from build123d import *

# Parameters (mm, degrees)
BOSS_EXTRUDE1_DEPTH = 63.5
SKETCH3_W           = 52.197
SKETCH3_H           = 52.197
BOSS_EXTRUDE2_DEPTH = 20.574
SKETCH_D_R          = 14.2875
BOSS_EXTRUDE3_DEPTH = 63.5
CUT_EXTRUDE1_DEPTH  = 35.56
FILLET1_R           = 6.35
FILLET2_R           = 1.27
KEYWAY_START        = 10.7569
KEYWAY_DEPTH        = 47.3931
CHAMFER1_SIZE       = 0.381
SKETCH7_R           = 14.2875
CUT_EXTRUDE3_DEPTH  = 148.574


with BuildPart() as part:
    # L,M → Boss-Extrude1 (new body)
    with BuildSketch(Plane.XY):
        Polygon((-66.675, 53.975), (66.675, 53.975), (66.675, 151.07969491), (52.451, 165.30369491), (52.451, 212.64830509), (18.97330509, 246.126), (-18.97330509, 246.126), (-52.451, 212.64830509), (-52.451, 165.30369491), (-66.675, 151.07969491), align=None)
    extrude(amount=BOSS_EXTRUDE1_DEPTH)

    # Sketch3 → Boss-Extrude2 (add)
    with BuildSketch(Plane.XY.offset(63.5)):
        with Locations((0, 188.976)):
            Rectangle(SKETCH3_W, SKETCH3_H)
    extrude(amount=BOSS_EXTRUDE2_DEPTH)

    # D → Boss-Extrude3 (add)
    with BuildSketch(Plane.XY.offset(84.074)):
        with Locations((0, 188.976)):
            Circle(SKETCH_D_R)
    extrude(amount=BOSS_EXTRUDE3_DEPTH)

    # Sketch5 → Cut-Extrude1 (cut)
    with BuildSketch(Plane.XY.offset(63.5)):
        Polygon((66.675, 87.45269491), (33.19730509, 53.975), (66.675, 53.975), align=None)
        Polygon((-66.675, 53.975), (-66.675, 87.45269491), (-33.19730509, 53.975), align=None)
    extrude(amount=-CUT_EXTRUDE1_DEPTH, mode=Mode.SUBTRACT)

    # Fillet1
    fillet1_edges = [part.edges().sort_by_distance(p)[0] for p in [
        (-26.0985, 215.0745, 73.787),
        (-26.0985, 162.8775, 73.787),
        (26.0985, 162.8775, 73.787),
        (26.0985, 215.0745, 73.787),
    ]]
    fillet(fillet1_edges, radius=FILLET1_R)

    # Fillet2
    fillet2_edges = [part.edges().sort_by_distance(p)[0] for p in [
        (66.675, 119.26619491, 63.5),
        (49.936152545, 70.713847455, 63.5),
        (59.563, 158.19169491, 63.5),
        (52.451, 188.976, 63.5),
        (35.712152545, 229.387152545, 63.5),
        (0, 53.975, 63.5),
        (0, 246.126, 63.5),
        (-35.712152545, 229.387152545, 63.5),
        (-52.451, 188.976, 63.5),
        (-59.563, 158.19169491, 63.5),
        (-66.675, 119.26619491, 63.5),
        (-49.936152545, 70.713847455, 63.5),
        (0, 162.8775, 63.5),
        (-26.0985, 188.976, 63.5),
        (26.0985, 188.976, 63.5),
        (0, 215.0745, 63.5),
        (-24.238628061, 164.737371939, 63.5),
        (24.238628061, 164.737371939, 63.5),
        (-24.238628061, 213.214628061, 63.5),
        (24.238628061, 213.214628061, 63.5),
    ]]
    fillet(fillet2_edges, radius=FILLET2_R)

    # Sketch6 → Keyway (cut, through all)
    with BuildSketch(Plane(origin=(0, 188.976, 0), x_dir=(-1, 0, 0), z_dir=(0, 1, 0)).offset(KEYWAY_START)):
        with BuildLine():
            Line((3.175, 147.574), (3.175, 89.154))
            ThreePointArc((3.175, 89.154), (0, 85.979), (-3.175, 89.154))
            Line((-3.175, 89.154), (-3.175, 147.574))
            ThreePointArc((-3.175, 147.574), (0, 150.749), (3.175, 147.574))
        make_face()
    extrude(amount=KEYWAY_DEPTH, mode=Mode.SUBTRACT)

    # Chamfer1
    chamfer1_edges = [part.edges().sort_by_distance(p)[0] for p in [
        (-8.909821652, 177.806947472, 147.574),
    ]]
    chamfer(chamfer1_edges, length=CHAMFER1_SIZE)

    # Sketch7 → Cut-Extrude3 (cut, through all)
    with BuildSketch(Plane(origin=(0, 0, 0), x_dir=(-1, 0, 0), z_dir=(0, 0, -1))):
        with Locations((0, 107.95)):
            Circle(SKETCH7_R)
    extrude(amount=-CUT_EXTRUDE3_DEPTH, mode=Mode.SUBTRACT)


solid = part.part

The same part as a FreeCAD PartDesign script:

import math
import FreeCAD as App
import Part
import Sketcher

V = App.Vector
Q = App.Units.Quantity


def edges_at(feature, points):
    """Names of the edges that pass closest to the given points."""
    edges = feature.Shape.Edges
    near = lambda p: min(range(len(edges)), key=lambda i: edges[i].distToShape(Part.Vertex(*p))[0])
    return sorted({f"Edge{near(p) + 1}" for p in points})

doc = App.newDocument("Part")
body = doc.addObject("PartDesign::Body", "Body")

sketch1 = body.newObject("Sketcher::SketchObject", "Sketch")
sketch1.AttachmentSupport = (doc.getObject("XY_Plane"), [""])
sketch1.MapMode = "FlatFace"
sketch1.addGeometry(Part.LineSegment(V(-66.675, 53.975, 0), V(66.675, 53.975, 0)), False)
sketch1.addGeometry(Part.LineSegment(V(66.675, 53.975, 0), V(66.675, 151.079695, 0)), False)
sketch1.addGeometry(Part.LineSegment(V(66.675, 151.079695, 0), V(52.451, 165.303695, 0)), False)
sketch1.addGeometry(Part.LineSegment(V(52.451, 165.303695, 0), V(52.451, 212.648305, 0)), False)
sketch1.addGeometry(Part.LineSegment(V(52.451, 212.648305, 0), V(18.973305, 246.126, 0)), False)
sketch1.addGeometry(Part.LineSegment(V(18.973305, 246.126, 0), V(-18.973305, 246.126, 0)), False)
sketch1.addGeometry(Part.LineSegment(V(-18.973305, 246.126, 0), V(-52.451, 212.648305, 0)), False)
sketch1.addGeometry(Part.LineSegment(V(-52.451, 212.648305, 0), V(-52.451, 165.303695, 0)), False)
sketch1.addGeometry(Part.LineSegment(V(-52.451, 165.303695, 0), V(-66.675, 151.079695, 0)), False)
sketch1.addGeometry(Part.LineSegment(V(-66.675, 151.079695, 0), V(-66.675, 53.975, 0)), False)
sketch1.addConstraint(Sketcher.Constraint("Coincident", 0, 2, 1, 1))
sketch1.addConstraint(Sketcher.Constraint("Coincident", 1, 2, 2, 1))
sketch1.addConstraint(Sketcher.Constraint("Coincident", 2, 2, 3, 1))
sketch1.addConstraint(Sketcher.Constraint("Coincident", 3, 2, 4, 1))
sketch1.addConstraint(Sketcher.Constraint("Coincident", 4, 2, 5, 1))
sketch1.addConstraint(Sketcher.Constraint("Coincident", 5, 2, 6, 1))
sketch1.addConstraint(Sketcher.Constraint("Coincident", 6, 2, 7, 1))
sketch1.addConstraint(Sketcher.Constraint("Coincident", 7, 2, 8, 1))
sketch1.addConstraint(Sketcher.Constraint("Coincident", 8, 2, 9, 1))
sketch1.addConstraint(Sketcher.Constraint("Coincident", 9, 2, 0, 1))
sketch1.addConstraint(Sketcher.Constraint("Horizontal", 0))
sketch1.addConstraint(Sketcher.Constraint("Vertical", 1))
sketch1.addConstraint(Sketcher.Constraint("Vertical", 3))
sketch1.addConstraint(Sketcher.Constraint("Horizontal", 5))
sketch1.addConstraint(Sketcher.Constraint("Vertical", 7))
sketch1.addConstraint(Sketcher.Constraint("Vertical", 9))
sketch1.addConstraint(Sketcher.Constraint("Symmetric", 3, 2, 6, 2, -2))
sketch1.addConstraint(Sketcher.Constraint("Symmetric", 1, 2, 8, 2, -2))
sketch1.addConstraint(Sketcher.Constraint("Parallel", 2, 4))
sketch1.addConstraint(Sketcher.Constraint("Perpendicular", 4, 6))
sketch1.addConstraint(Sketcher.Constraint("Parallel", 6, 8))
sketch1.addConstraint(Sketcher.Constraint("Horizontal", 2, 2, 7, 2))
sketch1.addConstraint(Sketcher.Constraint("DistanceX", 0, 1, 0, 2, Q("5.25 in")))
sketch1.addConstraint(Sketcher.Constraint("DistanceY", -1, 1, 4, 2, Q("9.69 in")))
sketch1.addConstraint(Sketcher.Constraint("DistanceX", 2, 2, 1, 2, Q("0.56 in")))
sketch1.addConstraint(Sketcher.Constraint("DistanceY", -1, 1, 0, 2, Q("2.125 in")))
sketch1.addConstraint(Sketcher.Constraint("DistanceX", 5, 2, 5, 1, 37.94661))
sketch1.addConstraint(Sketcher.Constraint("DistanceY", 3, 1, 3, 2, 47.34461))
pad1 = body.newObject("PartDesign::Pad", "Pad")
pad1.Profile = sketch1
pad1.Length = Q("2.5 in")

sketch2 = body.newObject("Sketcher::SketchObject", "Sketch001")
sketch2.AttachmentSupport = (doc.getObject("XY_Plane"), [""])
sketch2.MapMode = "FlatFace"
sketch2.AttachmentOffset = App.Placement(V(0, 0, 2.5 * 25.4), App.Rotation())
sketch2.addGeometry(Part.LineSegment(V(-26.0985, 215.0745, 0), V(-26.0985, 162.8775, 0)), False)
sketch2.addGeometry(Part.LineSegment(V(-26.0985, 162.8775, 0), V(26.0985, 162.8775, 0)), False)
sketch2.addGeometry(Part.LineSegment(V(26.0985, 162.8775, 0), V(26.0985, 215.0745, 0)), False)
sketch2.addGeometry(Part.LineSegment(V(26.0985, 215.0745, 0), V(-26.0985, 215.0745, 0)), False)
sketch2.addConstraint(Sketcher.Constraint("Coincident", 0, 2, 1, 1))
sketch2.addConstraint(Sketcher.Constraint("Coincident", 1, 2, 2, 1))
sketch2.addConstraint(Sketcher.Constraint("Coincident", 2, 2, 3, 1))
sketch2.addConstraint(Sketcher.Constraint("Coincident", 3, 2, 0, 1))
sketch2.addConstraint(Sketcher.Constraint("Vertical", 0))
sketch2.addConstraint(Sketcher.Constraint("Horizontal", 1))
sketch2.addConstraint(Sketcher.Constraint("Vertical", 2))
sketch2.addConstraint(Sketcher.Constraint("Horizontal", 3))
sketch2.addConstraint(Sketcher.Constraint("Equal", 3, 0))
sketch2.addConstraint(Sketcher.Constraint("DistanceX", 1, 1, 1, 2, Q("2.055 in")))
sketch2.addConstraint(Sketcher.Constraint("DistanceX", 0, 2, -1, 1, Q("1.0275 in")))
sketch2.addConstraint(Sketcher.Constraint("DistanceY", -1, 1, 0, 2, Q("6.4125 in")))
pad2 = body.newObject("PartDesign::Pad", "Pad001")
pad2.Profile = sketch2
pad2.Length = Q("0.81 in")

sketch3 = body.newObject("Sketcher::SketchObject", "Sketch002")
sketch3.AttachmentSupport = (doc.getObject("XY_Plane"), [""])
sketch3.MapMode = "FlatFace"
sketch3.AttachmentOffset = App.Placement(V(0, 0, 3.31 * 25.4), App.Rotation())
sketch3.addGeometry(Part.Circle(V(0, 188.976, 0), V(0, 0, 1), 14.2875), False)
sketch3.addConstraint(Sketcher.Constraint("PointOnObject", 0, 3, -2))
sketch3.addConstraint(Sketcher.Constraint("Diameter", 0, Q("1.125 in")))
sketch3.addConstraint(Sketcher.Constraint("DistanceY", -1, 1, 0, 3, Q("7.44 in")))
pad3 = body.newObject("PartDesign::Pad", "Pad002")
pad3.Profile = sketch3
pad3.Length = Q("2.5 in")

sketch4 = body.newObject("Sketcher::SketchObject", "Sketch003")
sketch4.AttachmentSupport = (doc.getObject("XY_Plane"), [""])
sketch4.MapMode = "FlatFace"
sketch4.AttachmentOffset = App.Placement(V(0, 0, 2.5 * 25.4), App.Rotation())
sketch4.addGeometry(Part.LineSegment(V(66.675, 87.452695, 0), V(33.197305, 53.975, 0)), False)
sketch4.addGeometry(Part.LineSegment(V(33.197305, 53.975, 0), V(66.675, 53.975, 0)), False)
sketch4.addGeometry(Part.LineSegment(V(66.675, 53.975, 0), V(66.675, 87.452695, 0)), False)
sketch4.addGeometry(Part.LineSegment(V(-66.675, 87.452695, 0), V(-66.675, 53.975, 0)), False)
sketch4.addGeometry(Part.LineSegment(V(-66.675, 53.975, 0), V(-33.197305, 53.975, 0)), False)
sketch4.addGeometry(Part.LineSegment(V(-33.197305, 53.975, 0), V(-66.675, 87.452695, 0)), False)
sketch4.addConstraint(Sketcher.Constraint("Coincident", 0, 2, 1, 1))
sketch4.addConstraint(Sketcher.Constraint("Coincident", 1, 2, 2, 1))
sketch4.addConstraint(Sketcher.Constraint("Coincident", 2, 2, 0, 1))
sketch4.addConstraint(Sketcher.Constraint("Coincident", 3, 2, 4, 1))
sketch4.addConstraint(Sketcher.Constraint("Coincident", 4, 2, 5, 1))
sketch4.addConstraint(Sketcher.Constraint("Coincident", 5, 2, 3, 1))
sketch4.addConstraint(Sketcher.Constraint("Horizontal", 1))
sketch4.addConstraint(Sketcher.Constraint("Vertical", 2))
sketch4.addConstraint(Sketcher.Constraint("Vertical", 3))
sketch4.addConstraint(Sketcher.Constraint("Horizontal", 4))
sketch4.addConstraint(Sketcher.Constraint("Symmetric", 1, 2, 3, 2, -2))
sketch4.addConstraint(Sketcher.Constraint("Perpendicular", 0, 5))
sketch4.addConstraint(Sketcher.Constraint("Horizontal", 2, 2, 5, 2))
sketch4.addConstraint(Sketcher.Constraint("Equal", 1, 4))
sketch4.addConstraint(Sketcher.Constraint("DistanceX", 3, 2, 1, 2, Q("5.25 in")))
sketch4.addConstraint(Sketcher.Constraint("DistanceY", -1, 1, 0, 2, Q("2.125 in")))
sketch4.addConstraint(Sketcher.Constraint("Distance", 0, 47.34461))
pocket1 = body.newObject("PartDesign::Pocket", "Pocket")
pocket1.Profile = sketch4
pocket1.Length = Q("1.4 in")
doc.recompute()

fillet = body.newObject("PartDesign::Fillet", "Fillet")
fillet.Base = (pocket1, edges_at(pocket1, [
    (-26.099, 215.075, 73.787),
    (-26.099, 162.877, 73.787),
    (26.099, 162.877, 73.787),
    (26.099, 215.075, 73.787),
]))
fillet.Radius = Q("0.25 in")
doc.recompute()

fillet2 = body.newObject("PartDesign::Fillet", "Fillet001")
fillet2.Base = (fillet, edges_at(fillet, [
    (66.675, 119.266, 63.5),
    (49.936, 70.714, 63.5),
    (59.563, 158.192, 63.5),
    (52.451, 188.976, 63.5),
    (35.712, 229.387, 63.5),
    (0, 53.975, 63.5),
    (0, 246.126, 63.5),
    (-35.712, 229.387, 63.5),
    (-52.451, 188.976, 63.5),
    (-59.563, 158.192, 63.5),
    (-66.675, 119.266, 63.5),
    (-49.936, 70.714, 63.5),
    (0, 162.877, 63.5),
    (-26.099, 188.976, 63.5),
    (26.099, 188.976, 63.5),
    (0, 215.075, 63.5),
    (-24.239, 164.737, 63.5),
    (24.239, 164.737, 63.5),
    (-24.239, 213.215, 63.5),
    (24.239, 213.215, 63.5),
]))
fillet2.Radius = Q("0.05 in")

sketch5 = body.newObject("Sketcher::SketchObject", "Sketch004")
sketch5.AttachmentSupport = (doc.getObject("XZ_Plane"), [""])
sketch5.MapMode = "FlatFace"
sketch5.AttachmentOffset = App.Placement(V(0, 0, -7.8635 * 25.4), App.Rotation())
sketch5.addGeometry(Part.LineSegment(V(-3.175, 89.154, 0), V(-3.175, 147.574, 0)), False)
sketch5.addGeometry(Part.ArcOfCircle(Part.Circle(V(0, 147.574, 0), V(0, 0, 1), 3.175), math.radians(0), math.radians(180)), False)
sketch5.addGeometry(Part.LineSegment(V(3.175, 147.574, 0), V(3.175, 89.154, 0)), False)
sketch5.addGeometry(Part.ArcOfCircle(Part.Circle(V(0, 89.154, 0), V(0, 0, 1), 3.175), math.radians(180), math.radians(360)), False)
sketch5.addConstraint(Sketcher.Constraint("Tangent", 0, 2, 1, 2))
sketch5.addConstraint(Sketcher.Constraint("Tangent", 1, 1, 2, 1))
sketch5.addConstraint(Sketcher.Constraint("Tangent", 2, 2, 3, 2))
sketch5.addConstraint(Sketcher.Constraint("Tangent", 3, 1, 0, 1))
sketch5.addConstraint(Sketcher.Constraint("Vertical", 0))
sketch5.addConstraint(Sketcher.Constraint("Vertical", 2))
sketch5.addConstraint(Sketcher.Constraint("PointOnObject", 1, 3, -2))
sketch5.addConstraint(Sketcher.Constraint("DistanceY", 0, 1, 0, 2, Q("2.3 in")))
sketch5.addConstraint(Sketcher.Constraint("Radius", 1, Q("0.125 in")))
sketch5.addConstraint(Sketcher.Constraint("DistanceY", -1, 1, 1, 3, Q("5.81 in")))
pocket2 = body.newObject("PartDesign::Pocket", "Pocket001")
pocket2.Profile = sketch5
pocket2.Type = "ThroughAll"
doc.recompute()

chamfer = body.newObject("PartDesign::Chamfer", "Chamfer")
chamfer.Base = (pocket2, edges_at(pocket2, [(-8.91, 177.807, 147.574)]))
chamfer.Size = Q("0.015 in")

sketch6 = body.newObject("Sketcher::SketchObject", "Sketch005")
sketch6.AttachmentSupport = (doc.getObject("XY_Plane"), [""])
sketch6.MapMode = "FlatFace"
sketch6.addGeometry(Part.Circle(V(0, 107.95, 0), V(0, 0, 1), 14.2875), False)
sketch6.addConstraint(Sketcher.Constraint("PointOnObject", 0, 3, -2))
sketch6.addConstraint(Sketcher.Constraint("Diameter", 0, Q("1.125 in")))
sketch6.addConstraint(Sketcher.Constraint("DistanceY", -1, 1, 0, 3, Q("4.25 in")))
pocket3 = body.newObject("PartDesign::Pocket", "Pocket002")
pocket3.Profile = sketch6
pocket3.Type = "ThroughAll"
pocket3.Reversed = True

doc.recompute()
